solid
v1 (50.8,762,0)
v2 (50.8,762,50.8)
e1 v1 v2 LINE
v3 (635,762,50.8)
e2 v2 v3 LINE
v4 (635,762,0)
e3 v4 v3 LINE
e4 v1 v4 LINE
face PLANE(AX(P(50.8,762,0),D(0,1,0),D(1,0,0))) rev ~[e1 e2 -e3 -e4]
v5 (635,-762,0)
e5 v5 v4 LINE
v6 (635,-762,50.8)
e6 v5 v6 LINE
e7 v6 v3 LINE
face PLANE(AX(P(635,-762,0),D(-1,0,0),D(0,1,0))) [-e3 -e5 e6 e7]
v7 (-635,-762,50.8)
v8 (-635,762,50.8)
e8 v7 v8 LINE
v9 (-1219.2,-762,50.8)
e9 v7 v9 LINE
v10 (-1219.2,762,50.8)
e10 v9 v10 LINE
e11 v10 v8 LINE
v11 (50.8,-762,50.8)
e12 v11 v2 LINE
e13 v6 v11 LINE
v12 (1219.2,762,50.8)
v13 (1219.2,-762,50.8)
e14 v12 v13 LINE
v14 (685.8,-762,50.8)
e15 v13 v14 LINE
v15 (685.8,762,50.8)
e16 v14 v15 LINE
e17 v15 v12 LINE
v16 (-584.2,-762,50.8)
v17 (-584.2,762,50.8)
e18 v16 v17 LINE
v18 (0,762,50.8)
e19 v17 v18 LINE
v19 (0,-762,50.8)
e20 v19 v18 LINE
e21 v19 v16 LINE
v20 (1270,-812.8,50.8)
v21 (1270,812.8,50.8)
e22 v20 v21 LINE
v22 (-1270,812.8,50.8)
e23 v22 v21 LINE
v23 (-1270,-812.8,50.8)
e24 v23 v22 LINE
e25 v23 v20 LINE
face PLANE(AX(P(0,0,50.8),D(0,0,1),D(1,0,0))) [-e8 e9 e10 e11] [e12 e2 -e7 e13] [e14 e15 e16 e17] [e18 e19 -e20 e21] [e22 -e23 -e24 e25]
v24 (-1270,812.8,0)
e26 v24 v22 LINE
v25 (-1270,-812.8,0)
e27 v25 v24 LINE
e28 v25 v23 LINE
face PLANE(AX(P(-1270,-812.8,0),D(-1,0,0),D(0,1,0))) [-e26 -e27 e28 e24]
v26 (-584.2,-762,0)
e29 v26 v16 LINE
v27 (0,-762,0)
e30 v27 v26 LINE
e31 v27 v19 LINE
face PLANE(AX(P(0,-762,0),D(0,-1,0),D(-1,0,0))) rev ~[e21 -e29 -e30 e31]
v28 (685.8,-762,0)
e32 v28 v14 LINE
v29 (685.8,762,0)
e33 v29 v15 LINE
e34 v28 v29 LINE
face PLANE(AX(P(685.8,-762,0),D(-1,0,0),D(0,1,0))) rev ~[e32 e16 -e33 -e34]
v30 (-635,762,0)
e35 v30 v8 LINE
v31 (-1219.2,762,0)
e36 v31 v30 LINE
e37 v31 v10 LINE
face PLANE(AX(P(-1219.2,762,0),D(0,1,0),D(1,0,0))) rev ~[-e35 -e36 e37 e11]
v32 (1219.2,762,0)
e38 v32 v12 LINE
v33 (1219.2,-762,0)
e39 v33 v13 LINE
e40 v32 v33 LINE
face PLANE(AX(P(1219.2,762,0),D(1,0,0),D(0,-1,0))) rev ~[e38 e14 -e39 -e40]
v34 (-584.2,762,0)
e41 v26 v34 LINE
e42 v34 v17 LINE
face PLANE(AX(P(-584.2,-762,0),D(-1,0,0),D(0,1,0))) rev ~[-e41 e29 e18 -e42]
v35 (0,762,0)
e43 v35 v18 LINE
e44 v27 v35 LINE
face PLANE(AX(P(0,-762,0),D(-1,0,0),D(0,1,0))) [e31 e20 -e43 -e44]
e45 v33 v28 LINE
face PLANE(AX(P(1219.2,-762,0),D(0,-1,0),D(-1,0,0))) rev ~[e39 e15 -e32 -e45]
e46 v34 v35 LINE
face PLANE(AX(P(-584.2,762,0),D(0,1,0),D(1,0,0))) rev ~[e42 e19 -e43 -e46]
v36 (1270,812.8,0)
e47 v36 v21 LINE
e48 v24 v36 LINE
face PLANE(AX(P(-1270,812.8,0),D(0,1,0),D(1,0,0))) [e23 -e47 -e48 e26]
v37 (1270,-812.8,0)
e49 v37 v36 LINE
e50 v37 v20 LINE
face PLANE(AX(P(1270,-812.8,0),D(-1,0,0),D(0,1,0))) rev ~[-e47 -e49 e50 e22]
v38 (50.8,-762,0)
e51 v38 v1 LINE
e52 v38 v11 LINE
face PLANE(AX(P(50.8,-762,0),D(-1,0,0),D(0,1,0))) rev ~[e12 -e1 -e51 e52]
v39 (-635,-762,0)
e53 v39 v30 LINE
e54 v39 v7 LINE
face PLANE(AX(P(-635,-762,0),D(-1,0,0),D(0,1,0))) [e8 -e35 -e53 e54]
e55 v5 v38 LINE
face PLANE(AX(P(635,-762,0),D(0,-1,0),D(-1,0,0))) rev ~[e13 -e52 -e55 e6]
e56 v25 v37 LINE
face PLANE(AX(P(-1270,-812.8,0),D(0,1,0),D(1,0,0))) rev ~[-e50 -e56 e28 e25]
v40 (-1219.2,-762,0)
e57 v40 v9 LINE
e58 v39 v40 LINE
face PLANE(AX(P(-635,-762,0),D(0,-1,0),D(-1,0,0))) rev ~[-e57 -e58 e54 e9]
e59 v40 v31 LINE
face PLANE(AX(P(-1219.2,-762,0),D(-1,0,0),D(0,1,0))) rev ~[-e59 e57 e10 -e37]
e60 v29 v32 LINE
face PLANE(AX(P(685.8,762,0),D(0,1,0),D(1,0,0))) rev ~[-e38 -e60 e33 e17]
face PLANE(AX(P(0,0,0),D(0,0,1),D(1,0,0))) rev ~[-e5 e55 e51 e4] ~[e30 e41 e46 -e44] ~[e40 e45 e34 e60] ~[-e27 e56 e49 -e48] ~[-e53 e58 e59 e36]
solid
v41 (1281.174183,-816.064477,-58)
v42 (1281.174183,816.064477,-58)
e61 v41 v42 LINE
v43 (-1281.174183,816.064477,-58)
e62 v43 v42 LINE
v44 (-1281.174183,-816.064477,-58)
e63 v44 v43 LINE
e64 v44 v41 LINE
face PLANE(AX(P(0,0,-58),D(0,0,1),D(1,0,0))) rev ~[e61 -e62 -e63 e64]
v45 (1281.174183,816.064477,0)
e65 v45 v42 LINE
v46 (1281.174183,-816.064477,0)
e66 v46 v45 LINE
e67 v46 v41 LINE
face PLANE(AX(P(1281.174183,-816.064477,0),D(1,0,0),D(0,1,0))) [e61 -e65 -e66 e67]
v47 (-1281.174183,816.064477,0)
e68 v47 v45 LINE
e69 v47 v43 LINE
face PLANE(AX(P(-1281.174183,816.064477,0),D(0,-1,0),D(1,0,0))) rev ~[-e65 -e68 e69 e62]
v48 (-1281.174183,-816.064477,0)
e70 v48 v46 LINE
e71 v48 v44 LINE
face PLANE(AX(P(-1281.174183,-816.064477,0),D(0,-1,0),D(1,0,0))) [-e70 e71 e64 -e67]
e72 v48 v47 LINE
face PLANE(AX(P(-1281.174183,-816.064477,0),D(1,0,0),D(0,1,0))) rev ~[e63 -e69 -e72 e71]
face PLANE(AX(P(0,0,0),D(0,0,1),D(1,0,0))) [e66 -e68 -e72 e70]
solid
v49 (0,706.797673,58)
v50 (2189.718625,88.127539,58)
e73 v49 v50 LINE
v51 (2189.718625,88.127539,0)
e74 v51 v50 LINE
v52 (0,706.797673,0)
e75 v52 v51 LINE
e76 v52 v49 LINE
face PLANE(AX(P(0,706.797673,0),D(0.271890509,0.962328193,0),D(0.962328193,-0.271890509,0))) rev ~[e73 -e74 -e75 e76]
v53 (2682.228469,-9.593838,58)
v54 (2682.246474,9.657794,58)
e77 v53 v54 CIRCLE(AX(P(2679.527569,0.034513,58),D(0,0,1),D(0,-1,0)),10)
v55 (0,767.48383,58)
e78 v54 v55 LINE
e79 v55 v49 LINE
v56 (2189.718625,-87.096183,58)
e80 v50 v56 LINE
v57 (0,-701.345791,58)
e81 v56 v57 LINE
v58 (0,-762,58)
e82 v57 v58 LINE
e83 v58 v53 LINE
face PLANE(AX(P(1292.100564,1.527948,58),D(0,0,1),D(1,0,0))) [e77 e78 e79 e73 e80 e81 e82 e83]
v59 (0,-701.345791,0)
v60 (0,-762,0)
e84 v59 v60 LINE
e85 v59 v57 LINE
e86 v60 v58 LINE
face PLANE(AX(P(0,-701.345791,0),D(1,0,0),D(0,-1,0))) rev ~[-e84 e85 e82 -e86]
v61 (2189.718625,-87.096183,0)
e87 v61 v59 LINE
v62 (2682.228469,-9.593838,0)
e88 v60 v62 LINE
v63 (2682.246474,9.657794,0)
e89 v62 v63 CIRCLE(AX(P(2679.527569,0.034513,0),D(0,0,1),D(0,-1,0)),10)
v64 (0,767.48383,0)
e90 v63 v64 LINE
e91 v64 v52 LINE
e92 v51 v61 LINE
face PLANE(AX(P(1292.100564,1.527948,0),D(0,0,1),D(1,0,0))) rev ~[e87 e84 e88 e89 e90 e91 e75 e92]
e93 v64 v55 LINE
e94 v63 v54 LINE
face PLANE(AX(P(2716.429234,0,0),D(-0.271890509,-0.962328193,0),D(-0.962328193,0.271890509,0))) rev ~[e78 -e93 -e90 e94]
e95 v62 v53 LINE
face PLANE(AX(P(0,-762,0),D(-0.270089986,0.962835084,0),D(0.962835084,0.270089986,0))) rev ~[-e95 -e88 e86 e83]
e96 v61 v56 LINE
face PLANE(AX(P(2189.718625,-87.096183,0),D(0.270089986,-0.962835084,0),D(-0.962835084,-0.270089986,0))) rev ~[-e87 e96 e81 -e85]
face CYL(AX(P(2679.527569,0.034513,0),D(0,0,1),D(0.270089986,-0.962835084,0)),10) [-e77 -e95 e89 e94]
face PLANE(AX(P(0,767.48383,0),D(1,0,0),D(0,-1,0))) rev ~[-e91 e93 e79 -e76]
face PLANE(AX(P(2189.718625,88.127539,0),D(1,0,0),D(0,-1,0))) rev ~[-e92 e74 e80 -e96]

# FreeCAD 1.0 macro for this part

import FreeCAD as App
import Part
import Sketcher
Q = App.Units.Quantity


def edges_at(feature, points):
    """Names of the edges that pass closest to the given points."""
    edges = feature.Shape.Edges
    near = lambda p: min(range(len(edges)), key=lambda i: edges[i].distToShape(Part.Vertex(*p))[0])
    return sorted({f"Edge{near(p) + 1}" for p in points})


def add_polygon(sketch, points):
    """Adds a closed chain of lines whose ends are joined by coincident constraints."""
    first, n = sketch.GeometryCount, len(points)
    for a, b in zip(points, points[1:] + points[:1]):
        sketch.addGeometry(Part.LineSegment(App.Vector(*a, 0), App.Vector(*b, 0)), False)
    for i in range(n):
        sketch.addConstraint(Sketcher.Constraint("Coincident", first + i, 2, first + (i + 1) % n, 1))

doc = App.newDocument("Part")
body = doc.addObject("PartDesign::Body", "Body")

# Sketch on XY plane
sketch1 = doc.addObject("Sketcher::SketchObject", "Sketch")
body.addObject(sketch1)
sketch1.AttachmentSupport = (doc.XY_Plane, [""])
sketch1.MapMode = "FlatFace"
add_polygon(sketch1, [(-1270, 813), (-1270, -813), (1270, -813), (1270, 813)])  # lines 0-3
add_polygon(sketch1, [(-1219, 762), (-635, 762), (-635, -762), (-1219, -762)])  # lines 4-7
add_polygon(sketch1, [(-584, 762), (0, 762), (0, -762), (-584, -762)])  # lines 8-11
add_polygon(sketch1, [(51, 762), (635, 762), (635, -762), (51, -762)])  # lines 12-15
add_polygon(sketch1, [(686, 762), (1219, 762), (1219, -762), (686, -762)])  # lines 16-19
sketch1.addConstraint([
    Sketcher.Constraint("Vertical", 0),
    Sketcher.Constraint("Horizontal", 1),
    Sketcher.Constraint("Vertical", 2),
    Sketcher.Constraint("Horizontal", 3),
    Sketcher.Constraint("Horizontal", 4),
    Sketcher.Constraint("Vertical", 5),
    Sketcher.Constraint("Horizontal", 6),
    Sketcher.Constraint("Vertical", 7),
    Sketcher.Constraint("Horizontal", 8),
    Sketcher.Constraint("Vertical", 9),
    Sketcher.Constraint("Horizontal", 10),
    Sketcher.Constraint("Vertical", 11),
    Sketcher.Constraint("Horizontal", 12),
    Sketcher.Constraint("Vertical", 13),
    Sketcher.Constraint("Horizontal", 14),
    Sketcher.Constraint("Vertical", 15),
    Sketcher.Constraint("Horizontal", 16),
    Sketcher.Constraint("Vertical", 17),
    Sketcher.Constraint("Horizontal", 18),
    Sketcher.Constraint("Vertical", 19),
    Sketcher.Constraint("Symmetric", 0, 2, 2, 2, -1, 1),
    Sketcher.Constraint("Symmetric", 8, 2, 9, 2, -1, 1),
    Sketcher.Constraint("Symmetric", 5, 2, 12, 2, -1, 1),
    Sketcher.Constraint("Symmetric", 6, 2, 16, 2, -1, 1),
    Sketcher.Constraint("Horizontal", 7, 2, 8, 2),
    Sketcher.Constraint("Horizontal", 6, 2, 9, 2),
    Sketcher.Constraint("Horizontal", 10, 2, 13, 2),
    Sketcher.Constraint("Horizontal", 14, 2, 17, 2),
    Sketcher.Constraint("Equal", 6, 8),
    Sketcher.Constraint("Equal", 10, 12),
    Sketcher.Constraint("DistanceX", 1, 1, 1, 2, Q("100 in")),
    Sketcher.Constraint("DistanceX", 4, 1, 4, 2, Q("23 in")),
    Sketcher.Constraint("DistanceX", 16, 1, 16, 2, Q("21 in")),
    Sketcher.Constraint("DistanceY", 0, 2, 0, 1, Q("64 in")),
    Sketcher.Constraint("DistanceY", 5, 2, 5, 1, Q("60 in")),
    Sketcher.Constraint("DistanceX", 4, 2, -1, 1, Q("25 in")),
])
pad1 = doc.addObject("PartDesign::Pad", "Pad")
body.addObject(pad1)
pad1.Profile = sketch1
pad1.Length = Q("2 in")
body2 = doc.addObject("PartDesign::Body", "Body001")

# Sketch on XY plane
sketch2 = doc.addObject("Sketcher::SketchObject", "Sketch001")
body2.addObject(sketch2)
sketch2.AttachmentSupport = (doc.getObject("XY_Plane001"), [""])
sketch2.MapMode = "FlatFace"
add_polygon(sketch2, [(0, -762), (2716, 0), (0, 767), (0, 707), (2190, 88), (2190, -87), (0, -701)])  # lines 0-6
sketch2.addConstraint([
    Sketcher.Constraint("Vertical", 2),
    Sketcher.Constraint("Vertical", 4),
    Sketcher.Constraint("Vertical", 6),
    Sketcher.Constraint("PointOnObject", 0, 2, -1),
    Sketcher.Constraint("PointOnObject", 1, 2, -2),
    Sketcher.Constraint("PointOnObject", 5, 2, -2),
    Sketcher.Constraint("Parallel", 1, 3),
    Sketcher.Constraint("Parallel", 0, 5),
    Sketcher.Constraint("DistanceY", 6, 2, -1, 1, Q("30 in")),
    Sketcher.Constraint("DistanceY", 6, 2, 6, 1, 60.654209),
    Sketcher.Constraint("Distance", 0, 2821.28194),
    Sketcher.Constraint("DistanceY", 2, 2, 2, 1, 60.686157),
    Sketcher.Constraint("DistanceY", 4, 2, 4, 1, 175.223722),
    Sketcher.Constraint("DistanceY", -1, 1, 1, 2, 767.48383),
])
pad2 = doc.addObject("PartDesign::Pad", "Pad001")
body2.addObject(pad2)
pad2.Profile = sketch2
pad2.Length = 58
doc.recompute()

fillet = doc.addObject("PartDesign::Fillet", "Fillet")
body2.addObject(fillet)
fillet.Base = (pad2, edges_at(pad2, [(2716.429, 0, 29)]))
fillet.Radius = 10
body3 = doc.addObject("PartDesign::Body", "Body002")

# Sketch on XY plane
sketch3 = doc.addObject("Sketcher::SketchObject", "Sketch002")
body3.addObject(sketch3)
sketch3.AttachmentSupport = (doc.getObject("XY_Plane002"), [""])
sketch3.MapMode = "FlatFace"
add_polygon(sketch3, [(-1281, 816), (-1281, -816), (1281, -816), (1281, 816)])  # lines 0-3
sketch3.addConstraint([
    Sketcher.Constraint("Vertical", 0),
    Sketcher.Constraint("Horizontal", 1),
    Sketcher.Constraint("Vertical", 2),
    Sketcher.Constraint("Horizontal", 3),
    Sketcher.Constraint("Symmetric", 0, 2, 2, 2, -1, 1),
    Sketcher.Constraint("DistanceX", 1, 1, 1, 2, 2562.348366),
    Sketcher.Constraint("DistanceY", 0, 2, 0, 1, 1632.128954),
])
pad3 = doc.addObject("PartDesign::Pad", "Pad002")
body3.addObject(pad3)
pad3.Profile = sketch3
pad3.Length = 58
pad3.Reversed = True

doc.recompute()
